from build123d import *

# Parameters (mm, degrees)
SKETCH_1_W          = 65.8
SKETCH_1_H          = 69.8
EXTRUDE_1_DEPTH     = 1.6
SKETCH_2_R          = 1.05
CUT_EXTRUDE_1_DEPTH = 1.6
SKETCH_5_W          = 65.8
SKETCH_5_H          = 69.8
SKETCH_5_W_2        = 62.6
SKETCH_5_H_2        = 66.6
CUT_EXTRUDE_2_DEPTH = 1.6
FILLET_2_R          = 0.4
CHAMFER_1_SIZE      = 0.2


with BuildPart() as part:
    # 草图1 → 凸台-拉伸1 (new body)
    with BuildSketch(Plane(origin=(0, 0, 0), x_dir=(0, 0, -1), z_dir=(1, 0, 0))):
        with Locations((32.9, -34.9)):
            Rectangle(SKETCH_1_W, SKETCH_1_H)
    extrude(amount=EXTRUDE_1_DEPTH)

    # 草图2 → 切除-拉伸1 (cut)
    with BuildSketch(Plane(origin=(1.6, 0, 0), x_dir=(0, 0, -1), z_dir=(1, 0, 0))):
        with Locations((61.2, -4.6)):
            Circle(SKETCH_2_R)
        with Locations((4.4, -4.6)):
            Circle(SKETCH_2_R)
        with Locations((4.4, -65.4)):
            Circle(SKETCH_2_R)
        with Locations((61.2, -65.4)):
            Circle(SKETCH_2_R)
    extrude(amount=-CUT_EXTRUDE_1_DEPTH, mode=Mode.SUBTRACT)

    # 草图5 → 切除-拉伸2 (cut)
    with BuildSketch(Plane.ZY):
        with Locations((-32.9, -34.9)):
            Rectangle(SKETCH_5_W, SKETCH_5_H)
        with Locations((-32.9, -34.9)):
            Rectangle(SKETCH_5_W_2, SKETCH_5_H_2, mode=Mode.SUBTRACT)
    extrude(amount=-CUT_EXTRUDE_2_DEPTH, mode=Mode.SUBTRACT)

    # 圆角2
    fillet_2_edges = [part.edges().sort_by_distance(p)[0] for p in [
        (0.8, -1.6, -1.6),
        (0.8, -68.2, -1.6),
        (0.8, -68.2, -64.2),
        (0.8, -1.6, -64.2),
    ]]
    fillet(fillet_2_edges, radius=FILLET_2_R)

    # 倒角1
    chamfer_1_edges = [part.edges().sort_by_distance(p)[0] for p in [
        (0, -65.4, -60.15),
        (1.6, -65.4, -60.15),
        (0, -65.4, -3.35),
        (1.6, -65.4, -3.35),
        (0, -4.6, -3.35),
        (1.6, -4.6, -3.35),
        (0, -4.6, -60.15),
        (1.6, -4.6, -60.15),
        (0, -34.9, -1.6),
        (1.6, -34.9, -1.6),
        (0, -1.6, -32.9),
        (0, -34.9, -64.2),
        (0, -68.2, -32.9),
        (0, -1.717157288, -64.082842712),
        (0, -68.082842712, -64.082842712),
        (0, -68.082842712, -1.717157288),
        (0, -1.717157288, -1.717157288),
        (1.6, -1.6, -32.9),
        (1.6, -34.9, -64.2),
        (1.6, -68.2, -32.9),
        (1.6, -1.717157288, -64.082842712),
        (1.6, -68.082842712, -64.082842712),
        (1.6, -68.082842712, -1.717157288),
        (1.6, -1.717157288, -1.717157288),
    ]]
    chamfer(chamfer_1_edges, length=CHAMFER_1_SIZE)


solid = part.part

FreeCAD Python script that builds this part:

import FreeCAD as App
import Part
import Sketcher
Q = App.Units.Quantity


def edges_at(feature, points):
    """Names of the edges that pass closest to the given points."""
    edges = feature.Shape.Edges
    near = lambda p: min(range(len(edges)), key=lambda i: edges[i].distToShape(Part.Vertex(*p))[0])
    return sorted({f"Edge{near(p) + 1}" for p in points})

doc = App.newDocument("Part")
body = doc.addObject("PartDesign::Body", "Body")

sketch1 = body.newObject("Sketcher::SketchObject", "Sketch")
sketch1.AttachmentSupport = (doc.getObject("YZ_Plane"), [""])
sketch1.MapMode = "FlatFace"
sketch1.addGeometry([
    Part.LineSegment(App.Vector(0, 0, 0), App.Vector(-69.8, 0, 0)),
    Part.LineSegment(App.Vector(-69.8, 0, 0), App.Vector(-69.8, -65.8, 0)),
    Part.LineSegment(App.Vector(-69.8, -65.8, 0), App.Vector(0, -65.8, 0)),
    Part.LineSegment(App.Vector(0, -65.8, 0), App.Vector(0, 0, 0)),
], False)
sketch1.addConstraint([
    Sketcher.Constraint("Coincident", 0, 2, 1, 1),
    Sketcher.Constraint("Coincident", 1, 2, 2, 1),
    Sketcher.Constraint("Coincident", 2, 2, 3, 1),
    Sketcher.Constraint("Coincident", 3, 2, 0, 1),
    Sketcher.Constraint("Horizontal", 0),
    Sketcher.Constraint("Vertical", 1),
    Sketcher.Constraint("Horizontal", 2),
    Sketcher.Constraint("Vertical", 3),
    Sketcher.Constraint("Coincident", 3, 2, -1, 1),
    Sketcher.Constraint("DistanceX", 0, 2, 0, 1, Q("69.8 mm")),
    Sketcher.Constraint("DistanceY", 1, 2, 1, 1, Q("65.8 mm")),
])
pad1 = body.newObject("PartDesign::Pad", "Pad")
pad1.Profile = sketch1
pad1.Length = 1.6

sketch2 = body.newObject("Sketcher::SketchObject", "Sketch001")
sketch2.AttachmentSupport = (doc.getObject("YZ_Plane"), [""])
sketch2.MapMode = "FlatFace"
sketch2.AttachmentOffset = App.Placement(App.Vector(0, 0, 1.6), App.Rotation())
sketch2.addGeometry([
    Part.Circle(App.Vector(-4.6, -61.2, 0), App.Vector(0, 0, 1), 1.05),
    Part.Circle(App.Vector(-4.6, -4.4, 0), App.Vector(0, 0, 1), 1.05),
    Part.Circle(App.Vector(-65.4, -4.4, 0), App.Vector(0, 0, 1), 1.05),
    Part.Circle(App.Vector(-65.4, -61.2, 0), App.Vector(0, 0, 1), 1.05),
], False)
sketch2.addConstraint([
    Sketcher.Constraint("Equal", 0, 1),
    Sketcher.Constraint("Equal", 1, 2),
    Sketcher.Constraint("Equal", 2, 3),
    Sketcher.Constraint("Horizontal", 1, 3, 2, 3),
    Sketcher.Constraint("Horizontal", 0, 3, 3, 3),
    Sketcher.Constraint("Vertical", 0, 3, 1, 3),
    Sketcher.Constraint("Vertical", 2, 3, 3, 3),
    Sketcher.Constraint("Diameter", 0, Q("2.1 mm")),
    Sketcher.Constraint("DistanceX", 0, 3, -1, 1, Q("4.6 mm")),
    Sketcher.Constraint("DistanceY", 0, 3, -1, 1, Q("61.2 mm")),
    Sketcher.Constraint("DistanceY", 1, 3, -1, 1, Q("4.4 mm")),
    Sketcher.Constraint("DistanceX", 2, 3, -1, 1, Q("65.4 mm")),
])
pocket1 = body.newObject("PartDesign::Pocket", "Pocket")
pocket1.Profile = sketch2
pocket1.Length = 1.6

sketch3 = body.newObject("Sketcher::SketchObject", "Sketch002")
sketch3.AttachmentSupport = (doc.getObject("YZ_Plane"), [""])
sketch3.MapMode = "FlatFace"
sketch3.addGeometry([
    Part.LineSegment(App.Vector(0, -65.8, 0), App.Vector(-69.8, -65.8, 0)),
    Part.LineSegment(App.Vector(-69.8, -65.8, 0), App.Vector(-69.8, 0, 0)),
    Part.LineSegment(App.Vector(-69.8, 0, 0), App.Vector(0, 0, 0)),
    Part.LineSegment(App.Vector(0, 0, 0), App.Vector(0, -65.8, 0)),
    Part.LineSegment(App.Vector(-68.2, -1.6, 0), App.Vector(-68.2, -64.2, 0)),
    Part.LineSegment(App.Vector(-68.2, -64.2, 0), App.Vector(-1.6, -64.2, 0)),
    Part.LineSegment(App.Vector(-1.6, -64.2, 0), App.Vector(-1.6, -1.6, 0)),
    Part.LineSegment(App.Vector(-1.6, -1.6, 0), App.Vector(-68.2, -1.6, 0)),
], False)
sketch3.addConstraint([
    Sketcher.Constraint("Coincident", 0, 2, 1, 1),
    Sketcher.Constraint("Coincident", 1, 2, 2, 1),
    Sketcher.Constraint("Coincident", 2, 2, 3, 1),
    Sketcher.Constraint("Coincident", 3, 2, 0, 1),
    Sketcher.Constraint("Coincident", 4, 2, 5, 1),
    Sketcher.Constraint("Coincident", 5, 2, 6, 1),
    Sketcher.Constraint("Coincident", 6, 2, 7, 1),
    Sketcher.Constraint("Coincident", 7, 2, 4, 1),
    Sketcher.Constraint("Horizontal", 0),
    Sketcher.Constraint("Vertical", 1),
    Sketcher.Constraint("Horizontal", 2),
    Sketcher.Constraint("Vertical", 3),
    Sketcher.Constraint("Vertical", 4),
    Sketcher.Constraint("Horizontal", 5),
    Sketcher.Constraint("Vertical", 6),
    Sketcher.Constraint("Horizontal", 7),
    Sketcher.Constraint("Coincident", 2, 2, -1, 1),
    Sketcher.Constraint("DistanceX", 0, 2, 0, 1, Q("69.8 mm")),
    Sketcher.Constraint("DistanceX", 5, 1, 5, 2, Q("66.6 mm")),
    Sketcher.Constraint("DistanceY", 1, 1, 1, 2, Q("65.8 mm")),
    Sketcher.Constraint("DistanceY", 4, 2, 4, 1, Q("62.6 mm")),
    Sketcher.Constraint("DistanceX", 4, 2, -1, 1, Q("68.2 mm")),
    Sketcher.Constraint("DistanceY", 4, 2, -1, 1, Q("64.2 mm")),
])
pocket2 = body.newObject("PartDesign::Pocket", "Pocket001")
pocket2.Profile = sketch3
pocket2.Length = 1.6
pocket2.Reversed = True
doc.recompute()

fillet = body.newObject("PartDesign::Fillet", "Fillet")
fillet.Base = (pocket2, edges_at(pocket2, [
    (0.8, -1.6, -1.6),
    (0.8, -68.2, -1.6),
    (0.8, -68.2, -64.2),
    (0.8, -1.6, -64.2),
]))
fillet.Radius = 0.4
doc.recompute()

chamfer = body.newObject("PartDesign::Chamfer", "Chamfer")
chamfer.Base = (fillet, edges_at(fillet, [
    (0, -65.4, -60.15),
    (1.6, -65.4, -60.15),
    (0, -65.4, -3.35),
    (1.6, -65.4, -3.35),
    (0, -4.6, -3.35),
    (1.6, -4.6, -3.35),
    (0, -4.6, -60.15),
    (1.6, -4.6, -60.15),
    (0, -34.9, -1.6),
    (1.6, -34.9, -1.6),
    (0, -1.6, -32.9),
    (0, -34.9, -64.2),
    (0, -68.2, -32.9),
    (0, -1.717, -64.083),
    (0, -68.083, -64.083),
    (0, -68.083, -1.717),
    (0, -1.717, -1.717),
    (1.6, -1.6, -32.9),
    (1.6, -34.9, -64.2),
    (1.6, -68.2, -32.9),
    (1.6, -1.717, -64.083),
    (1.6, -68.083, -64.083),
    (1.6, -68.083, -1.717),
    (1.6, -1.717, -1.717),
]))
chamfer.Size = 0.2

doc.recompute()
